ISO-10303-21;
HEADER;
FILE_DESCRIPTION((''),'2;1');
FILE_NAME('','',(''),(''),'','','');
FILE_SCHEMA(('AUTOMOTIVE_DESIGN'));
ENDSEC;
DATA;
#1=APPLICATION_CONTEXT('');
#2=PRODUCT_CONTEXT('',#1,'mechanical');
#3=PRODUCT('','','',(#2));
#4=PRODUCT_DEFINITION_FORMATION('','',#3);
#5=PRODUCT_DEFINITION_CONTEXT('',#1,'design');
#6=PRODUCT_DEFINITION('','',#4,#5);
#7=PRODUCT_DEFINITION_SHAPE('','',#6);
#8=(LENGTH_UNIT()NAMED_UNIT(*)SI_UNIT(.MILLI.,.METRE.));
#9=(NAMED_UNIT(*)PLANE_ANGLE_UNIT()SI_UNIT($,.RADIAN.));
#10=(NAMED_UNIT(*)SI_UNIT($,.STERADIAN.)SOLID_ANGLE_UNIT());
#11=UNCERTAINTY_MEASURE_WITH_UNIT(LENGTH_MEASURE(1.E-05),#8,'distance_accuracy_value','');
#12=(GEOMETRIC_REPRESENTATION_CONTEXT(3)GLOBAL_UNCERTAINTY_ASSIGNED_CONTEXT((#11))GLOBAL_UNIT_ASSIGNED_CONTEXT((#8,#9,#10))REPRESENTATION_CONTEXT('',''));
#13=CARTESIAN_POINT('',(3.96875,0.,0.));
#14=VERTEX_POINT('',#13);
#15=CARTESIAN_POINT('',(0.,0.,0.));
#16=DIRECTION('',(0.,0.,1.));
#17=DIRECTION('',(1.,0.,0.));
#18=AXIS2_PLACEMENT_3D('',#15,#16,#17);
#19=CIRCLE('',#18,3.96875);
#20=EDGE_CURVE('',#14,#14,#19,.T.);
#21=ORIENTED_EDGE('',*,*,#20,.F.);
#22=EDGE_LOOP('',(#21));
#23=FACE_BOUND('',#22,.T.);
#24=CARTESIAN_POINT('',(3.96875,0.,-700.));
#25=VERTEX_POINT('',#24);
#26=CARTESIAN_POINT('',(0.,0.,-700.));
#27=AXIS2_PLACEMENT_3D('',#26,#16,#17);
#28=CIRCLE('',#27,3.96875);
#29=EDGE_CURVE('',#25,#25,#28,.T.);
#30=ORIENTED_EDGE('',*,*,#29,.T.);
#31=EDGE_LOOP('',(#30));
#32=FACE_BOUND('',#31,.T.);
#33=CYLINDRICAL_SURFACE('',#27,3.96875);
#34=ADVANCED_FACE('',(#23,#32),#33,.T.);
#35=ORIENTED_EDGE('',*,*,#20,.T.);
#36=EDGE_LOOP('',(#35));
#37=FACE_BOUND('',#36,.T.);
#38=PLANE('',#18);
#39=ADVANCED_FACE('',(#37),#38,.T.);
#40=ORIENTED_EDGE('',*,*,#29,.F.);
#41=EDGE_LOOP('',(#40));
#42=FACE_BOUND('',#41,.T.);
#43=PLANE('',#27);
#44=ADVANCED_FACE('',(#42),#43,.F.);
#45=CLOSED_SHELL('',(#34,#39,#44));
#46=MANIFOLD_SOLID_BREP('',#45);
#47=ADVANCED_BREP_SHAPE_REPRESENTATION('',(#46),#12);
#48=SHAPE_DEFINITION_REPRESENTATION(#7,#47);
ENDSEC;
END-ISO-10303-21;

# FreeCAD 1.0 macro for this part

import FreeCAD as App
import Part
import Sketcher
from FreeCAD import Vector

doc = App.newDocument("Part")
body = doc.addObject("PartDesign::Body", "Body")

# Sketch on XY plane
sketch1 = doc.addObject("Sketcher::SketchObject", "Sketch")
body.addObject(sketch1)
sketch1.AttachmentSupport = (doc.XY_Plane, [""])
sketch1.MapMode = "FlatFace"
sketch1.addGeometry(Part.Circle(Vector(0, 0, 0), Vector(0, 0, 1), 4), False)
sketch1.addConstraint([
    Sketcher.Constraint("Coincident", 0, 3, -1, 1),
    Sketcher.Constraint("Diameter", 0, 7.9375),
])
pad1 = doc.addObject("PartDesign::Pad", "Pad")
body.addObject(pad1)
pad1.Profile = sketch1
pad1.Length = 700
pad1.Reversed = True

doc.recompute()
